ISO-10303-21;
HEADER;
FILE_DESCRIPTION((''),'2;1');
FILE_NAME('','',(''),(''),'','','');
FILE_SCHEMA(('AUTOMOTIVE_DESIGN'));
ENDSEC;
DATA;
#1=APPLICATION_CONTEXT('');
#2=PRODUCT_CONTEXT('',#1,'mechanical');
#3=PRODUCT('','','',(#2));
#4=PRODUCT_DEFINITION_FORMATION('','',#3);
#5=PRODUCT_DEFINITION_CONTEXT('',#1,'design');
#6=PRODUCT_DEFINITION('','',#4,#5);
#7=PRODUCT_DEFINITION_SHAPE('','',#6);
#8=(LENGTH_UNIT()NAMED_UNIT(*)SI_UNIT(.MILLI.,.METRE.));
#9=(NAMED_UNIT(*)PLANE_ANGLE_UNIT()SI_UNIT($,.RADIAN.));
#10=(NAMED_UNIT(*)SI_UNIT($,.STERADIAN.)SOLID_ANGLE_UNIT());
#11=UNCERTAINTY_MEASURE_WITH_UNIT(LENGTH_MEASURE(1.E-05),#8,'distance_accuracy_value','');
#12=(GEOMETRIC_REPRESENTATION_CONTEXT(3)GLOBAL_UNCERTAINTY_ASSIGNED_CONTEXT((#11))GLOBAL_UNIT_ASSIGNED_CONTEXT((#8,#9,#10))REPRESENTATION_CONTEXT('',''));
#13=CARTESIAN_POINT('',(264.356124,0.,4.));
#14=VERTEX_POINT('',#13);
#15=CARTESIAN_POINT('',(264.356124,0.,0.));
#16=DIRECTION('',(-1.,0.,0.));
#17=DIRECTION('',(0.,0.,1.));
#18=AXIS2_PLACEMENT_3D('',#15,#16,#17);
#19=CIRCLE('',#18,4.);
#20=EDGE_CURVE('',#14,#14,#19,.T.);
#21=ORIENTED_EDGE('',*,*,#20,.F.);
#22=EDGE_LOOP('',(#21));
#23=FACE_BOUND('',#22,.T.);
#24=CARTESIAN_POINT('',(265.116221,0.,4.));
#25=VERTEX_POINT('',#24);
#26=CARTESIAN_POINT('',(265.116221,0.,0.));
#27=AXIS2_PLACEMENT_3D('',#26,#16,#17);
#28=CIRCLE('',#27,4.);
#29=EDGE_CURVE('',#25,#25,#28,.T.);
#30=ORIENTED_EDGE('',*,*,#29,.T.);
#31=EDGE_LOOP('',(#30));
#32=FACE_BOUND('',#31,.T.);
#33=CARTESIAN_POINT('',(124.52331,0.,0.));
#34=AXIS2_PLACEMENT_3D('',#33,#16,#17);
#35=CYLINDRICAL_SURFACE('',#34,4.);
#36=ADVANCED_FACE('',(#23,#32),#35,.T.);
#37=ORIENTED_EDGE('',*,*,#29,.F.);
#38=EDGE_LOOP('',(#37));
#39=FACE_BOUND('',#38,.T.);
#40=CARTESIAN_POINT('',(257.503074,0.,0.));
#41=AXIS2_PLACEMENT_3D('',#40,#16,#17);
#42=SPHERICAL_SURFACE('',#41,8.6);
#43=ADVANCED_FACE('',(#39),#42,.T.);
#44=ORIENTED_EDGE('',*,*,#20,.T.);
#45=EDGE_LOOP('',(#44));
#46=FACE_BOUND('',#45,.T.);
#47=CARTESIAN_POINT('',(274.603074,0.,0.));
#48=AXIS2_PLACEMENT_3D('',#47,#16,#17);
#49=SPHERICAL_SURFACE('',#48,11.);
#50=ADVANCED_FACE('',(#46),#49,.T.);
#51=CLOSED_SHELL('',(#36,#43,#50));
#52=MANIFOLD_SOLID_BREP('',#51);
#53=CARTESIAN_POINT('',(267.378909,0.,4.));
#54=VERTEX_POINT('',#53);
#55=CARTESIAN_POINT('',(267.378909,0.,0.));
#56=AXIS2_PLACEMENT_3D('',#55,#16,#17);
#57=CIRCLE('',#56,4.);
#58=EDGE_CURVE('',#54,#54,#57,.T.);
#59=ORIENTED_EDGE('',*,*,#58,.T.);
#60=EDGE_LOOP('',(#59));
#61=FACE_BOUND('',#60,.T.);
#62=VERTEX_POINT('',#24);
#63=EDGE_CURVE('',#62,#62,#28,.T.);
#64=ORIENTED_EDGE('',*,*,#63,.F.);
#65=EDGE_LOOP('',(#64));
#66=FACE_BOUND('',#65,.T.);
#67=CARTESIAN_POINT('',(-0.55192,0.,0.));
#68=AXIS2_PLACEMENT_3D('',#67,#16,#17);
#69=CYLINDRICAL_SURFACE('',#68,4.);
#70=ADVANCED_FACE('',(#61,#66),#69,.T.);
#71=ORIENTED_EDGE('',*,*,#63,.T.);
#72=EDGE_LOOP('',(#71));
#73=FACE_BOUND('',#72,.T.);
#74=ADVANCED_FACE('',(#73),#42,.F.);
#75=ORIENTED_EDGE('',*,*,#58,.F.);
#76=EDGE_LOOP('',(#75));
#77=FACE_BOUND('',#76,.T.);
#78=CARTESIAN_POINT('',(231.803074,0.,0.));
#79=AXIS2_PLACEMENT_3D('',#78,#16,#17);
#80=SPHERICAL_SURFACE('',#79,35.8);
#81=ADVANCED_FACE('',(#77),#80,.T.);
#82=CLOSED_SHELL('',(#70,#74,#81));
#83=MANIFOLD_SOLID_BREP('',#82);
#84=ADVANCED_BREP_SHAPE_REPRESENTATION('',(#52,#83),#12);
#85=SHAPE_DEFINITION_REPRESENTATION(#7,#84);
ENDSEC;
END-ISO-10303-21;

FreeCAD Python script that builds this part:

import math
import FreeCAD as App
import Part
import Sketcher

doc = App.newDocument("Part")
body = doc.addObject("PartDesign::Body", "Body")

# Sketch on XZ plane
sketch1 = doc.addObject("Sketcher::SketchObject", "Sketch")
body.addObject(sketch1)
sketch1.AttachmentSupport = (doc.XZ_Plane, [""])
sketch1.MapMode = "FlatFace"
sketch1.addGeometry(Part.ArcOfCircle(Part.Circle(App.Vector(274.603074, 0, 0), App.Vector(0, 0, 1), 11), math.radians(180), math.radians(201.323686)), False)
sketch1.addGeometry(Part.LineSegment(App.Vector(263.603074, 0, 0), App.Vector(266.103074, 0, 0)), False)
sketch1.addGeometry(Part.ArcOfCircle(Part.Circle(App.Vector(257.503074, 0, 0), App.Vector(0, 0, 1), 8.6), math.radians(-27.717748), math.radians(0)), False)
sketch1.addGeometry(Part.LineSegment(App.Vector(265.116221, -4, 0), App.Vector(264.356124, -4, 0)), False)
sketch1.addConstraint(Sketcher.Constraint("Coincident", 0, 1, 1, 1))
sketch1.addConstraint(Sketcher.Constraint("Coincident", 1, 2, 2, 2))
sketch1.addConstraint(Sketcher.Constraint("Coincident", 2, 1, 3, 1))
sketch1.addConstraint(Sketcher.Constraint("Coincident", 3, 2, 0, 2))
sketch1.addConstraint(Sketcher.Constraint("Horizontal", 1))
sketch1.addConstraint(Sketcher.Constraint("Horizontal", 3))
sketch1.addConstraint(Sketcher.Constraint("PointOnObject", 0, 3, -1))
sketch1.addConstraint(Sketcher.Constraint("PointOnObject", 2, 3, -1))
sketch1.addConstraint(Sketcher.Constraint("PointOnObject", 0, 1, -1))
sketch1.addConstraint(Sketcher.Constraint("Radius", 0, 11.0))
sketch1.addConstraint(Sketcher.Constraint("Radius", 2, 8.6))
sketch1.addConstraint(Sketcher.Constraint("DistanceX", 1, 1, 1, 2, 2.5))
sketch1.addConstraint(Sketcher.Constraint("DistanceY", 2, 1, -1, 1, 4.0))
sketch1.addConstraint(Sketcher.Constraint("DistanceX", -1, 1, 2, 1, 265.116221))
revolution = doc.addObject("PartDesign::Revolution", "Revolution")
body.addObject(revolution)
revolution.Profile = sketch1
revolution.ReferenceAxis = (sketch1, ["H_Axis"])
revolution.Angle = 360
body2 = doc.addObject("PartDesign::Body", "Body001")

# Sketch on XZ plane
sketch2 = doc.addObject("Sketcher::SketchObject", "Sketch001")
body2.addObject(sketch2)
sketch2.AttachmentSupport = (doc.getObject("XZ_Plane001"), [""])
sketch2.MapMode = "FlatFace"
sketch2.addGeometry(Part.LineSegment(App.Vector(267.378909, -4, 0), App.Vector(265.116221, -4, 0)), False)
sketch2.addGeometry(Part.ArcOfCircle(Part.Circle(App.Vector(257.503074, 0, 0), App.Vector(0, 0, 1), 8.6), math.radians(-27.717748), math.radians(0)), False)
sketch2.addGeometry(Part.LineSegment(App.Vector(266.103074, 0, 0), App.Vector(267.603074, 0, 0)), False)
sketch2.addGeometry(Part.ArcOfCircle(Part.Circle(App.Vector(231.803074, 0, 0), App.Vector(0, 0, 1), 35.8), math.radians(-6.415158), math.radians(0)), False)
sketch2.addConstraint(Sketcher.Constraint("Coincident", 0, 2, 1, 1))
sketch2.addConstraint(Sketcher.Constraint("Coincident", 1, 2, 2, 1))
sketch2.addConstraint(Sketcher.Constraint("Coincident", 2, 2, 3, 2))
sketch2.addConstraint(Sketcher.Constraint("Coincident", 3, 1, 0, 1))
sketch2.addConstraint(Sketcher.Constraint("Horizontal", 0))
sketch2.addConstraint(Sketcher.Constraint("Horizontal", 2))
sketch2.addConstraint(Sketcher.Constraint("PointOnObject", 1, 3, -1))
sketch2.addConstraint(Sketcher.Constraint("PointOnObject", 3, 3, -1))
sketch2.addConstraint(Sketcher.Constraint("PointOnObject", 1, 2, -1))
sketch2.addConstraint(Sketcher.Constraint("Radius", 1, 8.6))
sketch2.addConstraint(Sketcher.Constraint("Radius", 3, 35.8))
sketch2.addConstraint(Sketcher.Constraint("DistanceX", 2, 1, 2, 2, 1.5))
sketch2.addConstraint(Sketcher.Constraint("DistanceY", 0, 2, -1, 1, 4.0))
sketch2.addConstraint(Sketcher.Constraint("DistanceX", -1, 1, 0, 2, 265.116221))
revolution2 = doc.addObject("PartDesign::Revolution", "Revolution001")
body2.addObject(revolution2)
revolution2.Profile = sketch2
revolution2.ReferenceAxis = (sketch2, ["H_Axis"])
revolution2.Angle = 360

doc.recompute()
